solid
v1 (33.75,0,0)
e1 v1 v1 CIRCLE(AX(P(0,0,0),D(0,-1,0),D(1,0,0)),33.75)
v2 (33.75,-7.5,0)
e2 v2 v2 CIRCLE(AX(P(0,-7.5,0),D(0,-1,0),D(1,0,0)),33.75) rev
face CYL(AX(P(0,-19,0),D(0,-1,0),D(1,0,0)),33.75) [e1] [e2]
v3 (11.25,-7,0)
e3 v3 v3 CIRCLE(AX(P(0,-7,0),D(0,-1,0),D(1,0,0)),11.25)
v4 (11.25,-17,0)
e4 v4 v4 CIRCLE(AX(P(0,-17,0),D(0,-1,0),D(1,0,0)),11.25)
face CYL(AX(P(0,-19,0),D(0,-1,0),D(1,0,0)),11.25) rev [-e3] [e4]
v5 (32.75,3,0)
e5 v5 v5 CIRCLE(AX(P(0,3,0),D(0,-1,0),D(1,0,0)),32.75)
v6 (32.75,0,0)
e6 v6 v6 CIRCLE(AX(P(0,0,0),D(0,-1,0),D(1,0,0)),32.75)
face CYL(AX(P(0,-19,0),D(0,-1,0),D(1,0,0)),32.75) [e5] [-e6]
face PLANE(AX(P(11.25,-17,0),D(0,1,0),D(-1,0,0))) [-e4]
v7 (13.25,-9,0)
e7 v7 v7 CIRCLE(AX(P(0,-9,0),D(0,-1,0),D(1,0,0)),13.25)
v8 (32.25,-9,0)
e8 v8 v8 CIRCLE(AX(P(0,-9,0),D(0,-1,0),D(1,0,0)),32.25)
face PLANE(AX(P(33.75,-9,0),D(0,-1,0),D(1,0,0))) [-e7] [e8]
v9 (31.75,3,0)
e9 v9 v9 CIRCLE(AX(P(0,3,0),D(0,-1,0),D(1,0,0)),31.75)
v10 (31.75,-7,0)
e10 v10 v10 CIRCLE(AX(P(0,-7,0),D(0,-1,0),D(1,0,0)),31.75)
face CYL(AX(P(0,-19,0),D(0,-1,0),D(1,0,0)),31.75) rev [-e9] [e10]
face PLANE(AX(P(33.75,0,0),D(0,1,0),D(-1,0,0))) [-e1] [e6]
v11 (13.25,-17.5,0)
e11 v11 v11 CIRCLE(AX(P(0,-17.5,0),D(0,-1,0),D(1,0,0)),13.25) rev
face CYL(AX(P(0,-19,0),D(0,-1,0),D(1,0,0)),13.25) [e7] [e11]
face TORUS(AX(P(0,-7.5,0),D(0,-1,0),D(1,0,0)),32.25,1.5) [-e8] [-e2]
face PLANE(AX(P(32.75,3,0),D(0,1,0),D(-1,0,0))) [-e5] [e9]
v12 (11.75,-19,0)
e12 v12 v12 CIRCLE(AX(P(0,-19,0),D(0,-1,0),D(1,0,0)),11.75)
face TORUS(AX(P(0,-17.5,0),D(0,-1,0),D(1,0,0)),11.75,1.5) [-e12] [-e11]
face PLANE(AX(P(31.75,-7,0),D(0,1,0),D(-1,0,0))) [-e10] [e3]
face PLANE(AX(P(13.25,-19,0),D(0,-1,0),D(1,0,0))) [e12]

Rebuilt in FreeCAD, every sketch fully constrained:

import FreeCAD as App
import Part
import Sketcher
Q = App.Units.Quantity


def edges_at(feature, points):
    """Names of the edges that pass closest to the given points."""
    edges = feature.Shape.Edges
    near = lambda p: min(range(len(edges)), key=lambda i: edges[i].distToShape(Part.Vertex(*p))[0])
    return sorted({f"Edge{near(p) + 1}" for p in points})


def add_polygon(sketch, points):
    """Adds a closed chain of lines whose ends are joined by coincident constraints."""
    first, n = sketch.GeometryCount, len(points)
    for a, b in zip(points, points[1:] + points[:1]):
        sketch.addGeometry(Part.LineSegment(App.Vector(*a, 0), App.Vector(*b, 0)), False)
    for i in range(n):
        sketch.addConstraint(Sketcher.Constraint("Coincident", first + i, 2, first + (i + 1) % n, 1))

doc = App.newDocument("Part")
body = doc.addObject("PartDesign::Body", "Body")

sketch1 = body.newObject("Sketcher::SketchObject", "Sketch")
sketch1.AttachmentSupport = (doc.getObject("XY_Plane"), [""])
sketch1.MapMode = "FlatFace"
add_polygon(sketch1, [(33.75, -9), (33.75, 0), (32.75, 0), (32.75, 3), (31.75, 3), (31.75, -7), (11.25, -7), (11.25, -17), (0, -17), (0, -19), (13.25, -19), (13.25, -9)])
sketch1.addConstraint(Sketcher.Constraint("Vertical", 0))
sketch1.addConstraint(Sketcher.Constraint("Horizontal", 1))
sketch1.addConstraint(Sketcher.Constraint("Vertical", 2))
sketch1.addConstraint(Sketcher.Constraint("Horizontal", 3))
sketch1.addConstraint(Sketcher.Constraint("Vertical", 4))
sketch1.addConstraint(Sketcher.Constraint("Horizontal", 5))
sketch1.addConstraint(Sketcher.Constraint("Vertical", 6))
sketch1.addConstraint(Sketcher.Constraint("Horizontal", 7))
sketch1.addConstraint(Sketcher.Constraint("Vertical", 8))
sketch1.addConstraint(Sketcher.Constraint("Horizontal", 9))
sketch1.addConstraint(Sketcher.Constraint("Vertical", 10))
sketch1.addConstraint(Sketcher.Constraint("Horizontal", 11))
sketch1.addConstraint(Sketcher.Constraint("PointOnObject", 0, 2, -1))
sketch1.addConstraint(Sketcher.Constraint("PointOnObject", 7, 2, -2))
sketch1.addConstraint(Sketcher.Constraint("Equal", 1, 3))
sketch1.addConstraint(Sketcher.Constraint("Equal", 5, 11))
sketch1.addConstraint(Sketcher.Constraint("Equal", 4, 6))
sketch1.addConstraint(Sketcher.Constraint("Equal", 6, 10))
sketch1.addConstraint(Sketcher.Constraint("DistanceX", 1, 2, 1, 1, Q("1 mm")))
sketch1.addConstraint(Sketcher.Constraint("DistanceY", 0, 1, 0, 2, Q("9 mm")))
sketch1.addConstraint(Sketcher.Constraint("DistanceY", 2, 1, 2, 2, Q("3 mm")))
sketch1.addConstraint(Sketcher.Constraint("DistanceY", 4, 2, 4, 1, Q("10 mm")))
sketch1.addConstraint(Sketcher.Constraint("DistanceX", 5, 2, 5, 1, Q("20.5 mm")))
sketch1.addConstraint(Sketcher.Constraint("DistanceX", 7, 2, 7, 1, Q("11.25 mm")))
revolution = body.newObject("PartDesign::Revolution", "Revolution")
revolution.Profile = sketch1
revolution.ReferenceAxis = (sketch1, ["V_Axis"])
revolution.Angle = 360
doc.recompute()

fillet = body.newObject("PartDesign::Fillet", "Fillet")
fillet.Base = (revolution, edges_at(revolution, [(-13.25, -19, 0), (-33.75, -9, 0)]))
fillet.Radius = 1.5

doc.recompute()
